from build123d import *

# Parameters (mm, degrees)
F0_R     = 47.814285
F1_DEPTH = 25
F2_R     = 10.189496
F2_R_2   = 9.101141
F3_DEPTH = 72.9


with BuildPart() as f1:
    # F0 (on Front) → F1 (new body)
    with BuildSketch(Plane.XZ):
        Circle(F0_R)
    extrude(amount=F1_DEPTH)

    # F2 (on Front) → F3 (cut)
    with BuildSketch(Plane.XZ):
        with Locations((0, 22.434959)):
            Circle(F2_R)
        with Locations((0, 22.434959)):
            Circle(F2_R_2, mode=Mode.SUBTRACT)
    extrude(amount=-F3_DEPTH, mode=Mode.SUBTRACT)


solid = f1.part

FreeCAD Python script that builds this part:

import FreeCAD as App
import Part
import Sketcher

V = App.Vector
Q = App.Units.Quantity

doc = App.newDocument("Part")
params = doc.addObject("Spreadsheet::Sheet", "Params")
for row, (alias, value) in enumerate([
    ("pad1_length", "25 mm"),
    ("pocket1_length", "72.9 mm"),
], start=1):
    params.set(f"A{row}", alias)
    params.set(f"B{row}", "=" + value)
    params.setAlias(f"B{row}", alias)

body = doc.addObject("PartDesign::Body", "Body")

# Sketch on XZ plane
sketch1 = body.newObject("Sketcher::SketchObject", "Sketch")
sketch1.AttachmentSupport = (doc.getObject("XZ_Plane"), [""])
sketch1.MapMode = "FlatFace"
sketch1.addGeometry(Part.Circle(V(0, 0, 0), V(0, 0, 1), 48), False)
sketch1.addConstraint([
    Sketcher.Constraint("Coincident", 0, 3, -1, 1),
    Sketcher.Constraint("Diameter", 0, Q("95.62857 mm")),
])
pad1 = body.newObject("PartDesign::Pad", "Pad")
pad1.Profile = sketch1
pad1.setExpression("Length", "Params.pad1_length")

# Sketch on XZ plane
sketch2 = body.newObject("Sketcher::SketchObject", "Sketch001")
sketch2.AttachmentSupport = (doc.getObject("XZ_Plane"), [""])
sketch2.MapMode = "FlatFace"
sketch2.addGeometry([
    Part.Circle(V(0, 22, 0), V(0, 0, 1), 10),
    Part.Circle(V(0, 22, 0), V(0, 0, 1), 9),
], False)
sketch2.addConstraint([
    Sketcher.Constraint("Coincident", 1, 3, 0, 3),
    Sketcher.Constraint("PointOnObject", 0, 3, -2),
    Sketcher.Constraint("Diameter", 0, Q("20.378992 mm")),
    Sketcher.Constraint("Diameter", 1, Q("18.202282 mm")),
    Sketcher.Constraint("DistanceY", -1, 1, 0, 3, Q("22.434959 mm")),
])
pocket1 = body.newObject("PartDesign::Pocket", "Pocket")
pocket1.Profile = sketch2
pocket1.setExpression("Length", "Params.pocket1_length")

doc.recompute()
